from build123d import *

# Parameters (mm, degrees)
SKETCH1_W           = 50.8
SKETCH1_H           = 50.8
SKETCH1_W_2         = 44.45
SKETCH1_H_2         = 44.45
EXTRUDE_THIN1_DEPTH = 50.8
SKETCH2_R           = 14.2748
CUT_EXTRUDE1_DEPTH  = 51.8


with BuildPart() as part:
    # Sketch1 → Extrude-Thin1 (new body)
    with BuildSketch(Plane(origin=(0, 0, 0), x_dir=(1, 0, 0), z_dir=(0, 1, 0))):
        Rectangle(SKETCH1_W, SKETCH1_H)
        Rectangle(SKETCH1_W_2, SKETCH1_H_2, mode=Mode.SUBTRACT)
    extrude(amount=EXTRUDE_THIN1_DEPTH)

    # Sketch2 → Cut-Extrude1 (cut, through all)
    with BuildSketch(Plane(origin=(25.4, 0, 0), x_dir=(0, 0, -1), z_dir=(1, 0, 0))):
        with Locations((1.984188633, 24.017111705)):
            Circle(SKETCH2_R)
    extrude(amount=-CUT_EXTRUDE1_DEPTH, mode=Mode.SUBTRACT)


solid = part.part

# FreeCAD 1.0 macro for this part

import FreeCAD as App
import Part
import Sketcher
from FreeCAD import Vector
Q = App.Units.Quantity


def add_polygon(sketch, points):
    """Adds a closed chain of lines whose ends are joined by coincident constraints."""
    first, n = sketch.GeometryCount, len(points)
    for a, b in zip(points, points[1:] + points[:1]):
        sketch.addGeometry(Part.LineSegment(App.Vector(*a, 0), App.Vector(*b, 0)), False)
    for i in range(n):
        sketch.addConstraint(Sketcher.Constraint("Coincident", first + i, 2, first + (i + 1) % n, 1))

doc = App.newDocument("Part")
params = doc.addObject("Spreadsheet::Sheet", "Params")
for row, (alias, value) in enumerate([
    ("sketch1_width", "2 in"),
    ("sketch1_width2", "1.75 in"),
    ("pad1_length", "2 in"),
    ("sketch2_diameter", "1.124 in"),
], start=1):
    params.set(f"A{row}", alias)
    params.set(f"B{row}", "=" + value)
    params.setAlias(f"B{row}", alias)

body = doc.addObject("PartDesign::Body", "Body")

# Sketch on XZ plane
sketch1 = body.newObject("Sketcher::SketchObject", "Sketch")
sketch1.AttachmentSupport = (doc.getObject("XZ_Plane"), [""])
sketch1.MapMode = "FlatFace"
add_polygon(sketch1, [(-25, -25), (-25, 25), (25, 25), (25, -25)])  # lines 0-3
add_polygon(sketch1, [(22, 22), (-22, 22), (-22, -22), (22, -22)])  # lines 4-7
sketch1.addConstraint([
    Sketcher.Constraint("Vertical", 0),
    Sketcher.Constraint("Horizontal", 1),
    Sketcher.Constraint("Vertical", 2),
    Sketcher.Constraint("Horizontal", 3),
    Sketcher.Constraint("Horizontal", 4),
    Sketcher.Constraint("Vertical", 5),
    Sketcher.Constraint("Horizontal", 6),
    Sketcher.Constraint("Vertical", 7),
    Sketcher.Constraint("Symmetric", 0, 2, 2, 2, -1, 1),
    Sketcher.Constraint("Symmetric", 4, 2, 6, 2, -1, 1),
    Sketcher.Constraint("Equal", 3, 0),
    Sketcher.Constraint("Equal", 6, 5),
    Sketcher.Constraint("DistanceX", 1, 1, 1, 2, Q("2 in")),
    Sketcher.Constraint("DistanceX", 4, 2, 4, 1, Q("1.75 in")),
])
sketch1.setExpression("Constraints[20]", "Params.sketch1_width")
sketch1.setExpression("Constraints[21]", "Params.sketch1_width2")
pad1 = body.newObject("PartDesign::Pad", "Pad")
pad1.Profile = sketch1
pad1.setExpression("Length", "Params.pad1_length")
pad1.Reversed = True

# Sketch on YZ plane
sketch2 = body.newObject("Sketcher::SketchObject", "Sketch001")
sketch2.AttachmentSupport = (doc.getObject("YZ_Plane"), [""])
sketch2.MapMode = "FlatFace"
sketch2.AttachmentOffset = App.Placement(Vector(0, 0, 1 * 25.4), App.Rotation())
sketch2.addGeometry(Part.Circle(Vector(24, -2, 0), Vector(0, 0, 1), 14), False)
sketch2.addConstraint([
    Sketcher.Constraint("Diameter", 0, Q("1.124 in")),
    Sketcher.Constraint("DistanceX", -1, 1, 0, 3, Q("24.017112 mm")),
    Sketcher.Constraint("DistanceY", 0, 3, -1, 1, Q("1.984189 mm")),
])
sketch2.setExpression("Constraints[0]", "Params.sketch2_diameter")
pocket1 = body.newObject("PartDesign::Pocket", "Pocket")
pocket1.Profile = sketch2
pocket1.Type = "ThroughAll"

doc.recompute()
